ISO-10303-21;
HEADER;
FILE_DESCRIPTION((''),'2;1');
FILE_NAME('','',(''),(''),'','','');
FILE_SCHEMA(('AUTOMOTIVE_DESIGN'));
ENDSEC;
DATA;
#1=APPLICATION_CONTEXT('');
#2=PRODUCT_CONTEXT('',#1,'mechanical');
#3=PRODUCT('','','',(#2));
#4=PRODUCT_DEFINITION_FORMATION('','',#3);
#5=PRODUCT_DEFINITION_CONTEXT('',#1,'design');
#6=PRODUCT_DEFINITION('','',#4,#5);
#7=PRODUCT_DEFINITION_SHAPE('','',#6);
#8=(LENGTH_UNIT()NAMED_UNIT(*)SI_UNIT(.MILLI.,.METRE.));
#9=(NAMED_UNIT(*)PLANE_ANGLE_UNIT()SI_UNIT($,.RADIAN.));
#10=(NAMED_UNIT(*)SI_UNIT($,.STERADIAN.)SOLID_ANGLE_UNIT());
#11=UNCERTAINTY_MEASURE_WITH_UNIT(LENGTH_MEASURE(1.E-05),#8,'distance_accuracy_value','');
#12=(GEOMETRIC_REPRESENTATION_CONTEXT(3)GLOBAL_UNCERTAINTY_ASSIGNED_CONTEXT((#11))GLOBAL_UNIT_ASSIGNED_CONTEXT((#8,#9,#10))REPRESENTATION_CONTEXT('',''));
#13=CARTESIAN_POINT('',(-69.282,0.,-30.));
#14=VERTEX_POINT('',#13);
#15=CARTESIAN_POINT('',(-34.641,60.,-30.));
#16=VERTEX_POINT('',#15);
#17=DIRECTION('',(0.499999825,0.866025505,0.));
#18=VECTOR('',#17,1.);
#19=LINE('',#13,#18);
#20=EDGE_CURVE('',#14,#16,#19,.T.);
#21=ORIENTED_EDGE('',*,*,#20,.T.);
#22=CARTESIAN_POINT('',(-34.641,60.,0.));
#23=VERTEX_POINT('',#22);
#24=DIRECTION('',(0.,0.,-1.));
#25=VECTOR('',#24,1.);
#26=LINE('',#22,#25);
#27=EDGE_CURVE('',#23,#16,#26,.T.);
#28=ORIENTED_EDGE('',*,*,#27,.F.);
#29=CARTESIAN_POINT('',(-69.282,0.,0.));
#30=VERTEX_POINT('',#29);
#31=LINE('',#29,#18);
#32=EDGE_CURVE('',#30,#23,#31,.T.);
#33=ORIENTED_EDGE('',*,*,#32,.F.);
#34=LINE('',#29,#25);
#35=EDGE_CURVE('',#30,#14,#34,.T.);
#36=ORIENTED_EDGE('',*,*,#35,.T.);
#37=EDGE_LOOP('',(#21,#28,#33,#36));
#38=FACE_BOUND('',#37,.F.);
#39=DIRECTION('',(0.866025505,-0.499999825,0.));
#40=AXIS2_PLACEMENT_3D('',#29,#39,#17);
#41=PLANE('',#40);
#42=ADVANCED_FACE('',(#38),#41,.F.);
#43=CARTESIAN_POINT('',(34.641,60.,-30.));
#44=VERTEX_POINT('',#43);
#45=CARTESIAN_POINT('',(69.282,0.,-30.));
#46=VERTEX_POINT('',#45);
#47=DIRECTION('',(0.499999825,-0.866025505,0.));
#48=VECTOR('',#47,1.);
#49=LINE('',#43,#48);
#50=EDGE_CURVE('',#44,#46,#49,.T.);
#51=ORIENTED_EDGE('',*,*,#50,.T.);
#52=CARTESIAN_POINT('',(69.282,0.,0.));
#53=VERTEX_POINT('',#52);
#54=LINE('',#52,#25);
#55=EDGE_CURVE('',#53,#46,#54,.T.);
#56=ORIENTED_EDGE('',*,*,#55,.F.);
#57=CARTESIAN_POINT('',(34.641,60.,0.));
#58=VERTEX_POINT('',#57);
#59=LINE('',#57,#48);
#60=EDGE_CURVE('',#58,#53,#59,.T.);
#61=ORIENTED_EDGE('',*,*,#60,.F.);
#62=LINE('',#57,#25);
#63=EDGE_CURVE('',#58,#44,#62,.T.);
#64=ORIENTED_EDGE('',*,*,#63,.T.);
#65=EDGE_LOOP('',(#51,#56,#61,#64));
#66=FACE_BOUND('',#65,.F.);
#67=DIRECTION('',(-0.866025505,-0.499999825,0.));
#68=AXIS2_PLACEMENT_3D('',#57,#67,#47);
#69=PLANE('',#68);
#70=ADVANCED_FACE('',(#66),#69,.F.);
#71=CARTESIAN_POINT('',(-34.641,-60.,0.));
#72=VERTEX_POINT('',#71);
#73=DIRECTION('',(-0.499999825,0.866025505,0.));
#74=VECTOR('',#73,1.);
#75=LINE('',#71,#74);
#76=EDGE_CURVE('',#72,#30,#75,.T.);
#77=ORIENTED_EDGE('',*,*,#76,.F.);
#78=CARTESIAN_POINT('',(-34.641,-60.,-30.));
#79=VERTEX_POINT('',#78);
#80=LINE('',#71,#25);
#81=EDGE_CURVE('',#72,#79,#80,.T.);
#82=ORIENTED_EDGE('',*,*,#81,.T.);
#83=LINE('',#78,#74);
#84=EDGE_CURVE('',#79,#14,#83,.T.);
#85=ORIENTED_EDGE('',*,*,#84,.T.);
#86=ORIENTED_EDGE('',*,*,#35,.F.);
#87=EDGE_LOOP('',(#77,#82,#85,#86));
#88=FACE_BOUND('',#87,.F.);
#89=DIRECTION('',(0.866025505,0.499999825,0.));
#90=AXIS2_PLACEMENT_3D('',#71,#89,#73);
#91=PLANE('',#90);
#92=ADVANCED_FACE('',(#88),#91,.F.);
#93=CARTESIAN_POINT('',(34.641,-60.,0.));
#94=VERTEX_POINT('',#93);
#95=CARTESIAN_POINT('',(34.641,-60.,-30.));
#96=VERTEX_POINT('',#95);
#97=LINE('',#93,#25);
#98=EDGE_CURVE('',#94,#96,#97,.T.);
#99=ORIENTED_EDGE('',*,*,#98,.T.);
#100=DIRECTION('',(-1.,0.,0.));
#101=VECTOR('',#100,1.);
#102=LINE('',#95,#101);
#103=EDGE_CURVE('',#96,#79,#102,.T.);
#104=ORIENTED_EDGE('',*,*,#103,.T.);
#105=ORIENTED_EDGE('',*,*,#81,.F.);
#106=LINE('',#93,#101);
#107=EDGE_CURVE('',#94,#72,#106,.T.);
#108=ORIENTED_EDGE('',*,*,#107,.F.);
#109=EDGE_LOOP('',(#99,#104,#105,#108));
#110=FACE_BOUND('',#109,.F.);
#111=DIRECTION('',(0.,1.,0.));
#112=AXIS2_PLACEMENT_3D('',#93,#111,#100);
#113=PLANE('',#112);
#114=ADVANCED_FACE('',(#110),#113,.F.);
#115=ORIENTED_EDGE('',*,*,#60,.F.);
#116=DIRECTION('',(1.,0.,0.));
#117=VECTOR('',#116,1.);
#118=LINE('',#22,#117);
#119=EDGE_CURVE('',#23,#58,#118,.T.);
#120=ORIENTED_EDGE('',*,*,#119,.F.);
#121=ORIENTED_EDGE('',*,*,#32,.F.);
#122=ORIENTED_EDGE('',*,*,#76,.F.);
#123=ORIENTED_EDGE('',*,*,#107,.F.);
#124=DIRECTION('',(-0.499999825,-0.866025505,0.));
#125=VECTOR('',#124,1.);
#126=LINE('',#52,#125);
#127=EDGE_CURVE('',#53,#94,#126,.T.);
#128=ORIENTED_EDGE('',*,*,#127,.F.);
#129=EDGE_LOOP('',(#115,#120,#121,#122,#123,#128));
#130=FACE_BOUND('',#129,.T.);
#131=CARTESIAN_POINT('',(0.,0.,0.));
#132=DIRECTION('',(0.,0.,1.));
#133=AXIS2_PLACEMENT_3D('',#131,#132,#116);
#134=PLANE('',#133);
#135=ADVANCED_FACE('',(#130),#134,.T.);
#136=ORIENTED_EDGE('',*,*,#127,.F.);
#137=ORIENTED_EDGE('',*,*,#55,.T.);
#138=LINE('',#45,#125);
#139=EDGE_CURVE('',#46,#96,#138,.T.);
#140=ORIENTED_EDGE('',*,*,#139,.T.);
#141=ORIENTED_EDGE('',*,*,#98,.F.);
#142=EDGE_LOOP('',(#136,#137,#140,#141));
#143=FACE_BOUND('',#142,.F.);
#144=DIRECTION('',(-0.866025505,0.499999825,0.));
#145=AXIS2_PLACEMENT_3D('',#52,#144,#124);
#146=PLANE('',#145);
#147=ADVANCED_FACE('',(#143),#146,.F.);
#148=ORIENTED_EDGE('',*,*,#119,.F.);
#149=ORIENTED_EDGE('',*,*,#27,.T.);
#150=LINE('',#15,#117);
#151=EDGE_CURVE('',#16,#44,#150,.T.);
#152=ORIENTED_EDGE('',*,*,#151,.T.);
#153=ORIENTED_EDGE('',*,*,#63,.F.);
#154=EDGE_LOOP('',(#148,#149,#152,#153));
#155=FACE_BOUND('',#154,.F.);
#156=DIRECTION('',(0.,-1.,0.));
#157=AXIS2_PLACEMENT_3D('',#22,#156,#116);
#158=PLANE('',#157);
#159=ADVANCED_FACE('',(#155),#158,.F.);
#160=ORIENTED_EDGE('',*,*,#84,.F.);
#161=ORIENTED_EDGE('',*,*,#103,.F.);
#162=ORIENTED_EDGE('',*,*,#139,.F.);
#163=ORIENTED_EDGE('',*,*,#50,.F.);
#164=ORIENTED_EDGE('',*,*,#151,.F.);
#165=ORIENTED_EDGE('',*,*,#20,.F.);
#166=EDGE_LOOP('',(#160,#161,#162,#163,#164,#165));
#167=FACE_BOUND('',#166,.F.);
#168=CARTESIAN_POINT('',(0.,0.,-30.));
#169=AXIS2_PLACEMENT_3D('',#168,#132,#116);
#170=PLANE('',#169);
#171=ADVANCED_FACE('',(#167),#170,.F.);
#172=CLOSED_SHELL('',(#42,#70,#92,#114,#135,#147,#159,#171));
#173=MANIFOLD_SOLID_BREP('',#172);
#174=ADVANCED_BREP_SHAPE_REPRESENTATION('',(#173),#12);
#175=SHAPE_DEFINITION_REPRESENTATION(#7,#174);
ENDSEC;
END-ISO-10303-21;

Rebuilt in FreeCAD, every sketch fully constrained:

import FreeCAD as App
import Part
import Sketcher
Q = App.Units.Quantity


def add_polygon(sketch, points):
    """Adds a closed chain of lines whose ends are joined by coincident constraints."""
    first, n = sketch.GeometryCount, len(points)
    for a, b in zip(points, points[1:] + points[:1]):
        sketch.addGeometry(Part.LineSegment(App.Vector(*a, 0), App.Vector(*b, 0)), False)
    for i in range(n):
        sketch.addConstraint(Sketcher.Constraint("Coincident", first + i, 2, first + (i + 1) % n, 1))

doc = App.newDocument("Part")
body = doc.addObject("PartDesign::Body", "Body")

# Sketch on XY plane
sketch1 = body.newObject("Sketcher::SketchObject", "Sketch")
sketch1.AttachmentSupport = (doc.getObject("XY_Plane"), [""])
sketch1.MapMode = "FlatFace"
add_polygon(sketch1, [(35, 60), (-35, 60), (-69, 0), (-35, -60), (35, -60), (69, 0)])  # lines 0-5
sketch1.addConstraint([
    Sketcher.Constraint("Horizontal", 0),
    Sketcher.Constraint("Horizontal", 3),
    Sketcher.Constraint("Symmetric", 0, 2, 3, 2, -1, 1),
    Sketcher.Constraint("Symmetric", 1, 2, 4, 2, -1, 1),
    Sketcher.Constraint("PointOnObject", 1, 2, -1),
    Sketcher.Constraint("Parallel", 2, 5),
    Sketcher.Constraint("Vertical", 0, 2, 2, 2),
    Sketcher.Constraint("Angle", 1, Q("-120 deg")),
    Sketcher.Constraint("DistanceY", -1, 1, 0, 2, Q("60 mm")),
    Sketcher.Constraint("DistanceX", 0, 2, 0, 1, Q("69.282 mm")),
])
pad1 = body.newObject("PartDesign::Pad", "Pad")
pad1.Profile = sketch1
pad1.Length = 30
pad1.Reversed = True

doc.recompute()
